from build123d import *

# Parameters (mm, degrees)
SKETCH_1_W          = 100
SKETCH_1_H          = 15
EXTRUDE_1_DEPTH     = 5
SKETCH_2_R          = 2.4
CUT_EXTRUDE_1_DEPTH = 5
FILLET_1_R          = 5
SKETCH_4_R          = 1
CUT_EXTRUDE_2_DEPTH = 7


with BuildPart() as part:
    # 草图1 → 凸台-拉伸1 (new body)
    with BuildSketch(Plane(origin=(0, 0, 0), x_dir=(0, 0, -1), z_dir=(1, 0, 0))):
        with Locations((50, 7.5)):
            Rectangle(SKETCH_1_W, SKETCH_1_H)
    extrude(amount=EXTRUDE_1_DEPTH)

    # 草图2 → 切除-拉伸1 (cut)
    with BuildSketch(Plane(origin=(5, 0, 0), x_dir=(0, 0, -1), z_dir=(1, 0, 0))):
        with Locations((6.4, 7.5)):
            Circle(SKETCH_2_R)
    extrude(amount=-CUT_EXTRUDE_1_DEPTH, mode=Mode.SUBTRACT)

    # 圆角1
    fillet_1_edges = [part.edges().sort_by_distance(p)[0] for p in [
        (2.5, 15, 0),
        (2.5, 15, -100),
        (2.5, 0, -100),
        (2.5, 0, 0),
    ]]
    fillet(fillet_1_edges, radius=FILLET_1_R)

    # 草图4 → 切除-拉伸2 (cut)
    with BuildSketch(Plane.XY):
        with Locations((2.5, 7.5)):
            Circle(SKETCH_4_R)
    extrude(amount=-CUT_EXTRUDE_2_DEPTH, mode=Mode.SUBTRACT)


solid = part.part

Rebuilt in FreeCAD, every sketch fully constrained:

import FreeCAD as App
import Part
import Sketcher
from FreeCAD import Vector


def edges_at(feature, points):
    """Names of the edges that pass closest to the given points."""
    edges = feature.Shape.Edges
    near = lambda p: min(range(len(edges)), key=lambda i: edges[i].distToShape(Part.Vertex(*p))[0])
    return sorted({f"Edge{near(p) + 1}" for p in points})

doc = App.newDocument("Part")
body = doc.addObject("PartDesign::Body", "Body")

# Sketch on YZ plane
sketch1 = body.newObject("Sketcher::SketchObject", "Sketch")
sketch1.AttachmentSupport = (doc.getObject("YZ_Plane"), [""])
sketch1.MapMode = "FlatFace"
sketch1.addGeometry(Part.LineSegment(Vector(15, 0, 0), Vector(0, 0, 0)), False)
sketch1.addGeometry(Part.LineSegment(Vector(0, 0, 0), Vector(0, -100, 0)), False)
sketch1.addGeometry(Part.LineSegment(Vector(0, -100, 0), Vector(15, -100, 0)), False)
sketch1.addGeometry(Part.LineSegment(Vector(15, -100, 0), Vector(15, 0, 0)), False)
sketch1.addConstraint(Sketcher.Constraint("Coincident", 0, 2, 1, 1))
sketch1.addConstraint(Sketcher.Constraint("Coincident", 1, 2, 2, 1))
sketch1.addConstraint(Sketcher.Constraint("Coincident", 2, 2, 3, 1))
sketch1.addConstraint(Sketcher.Constraint("Coincident", 3, 2, 0, 1))
sketch1.addConstraint(Sketcher.Constraint("Horizontal", 0))
sketch1.addConstraint(Sketcher.Constraint("Vertical", 1))
sketch1.addConstraint(Sketcher.Constraint("Horizontal", 2))
sketch1.addConstraint(Sketcher.Constraint("Vertical", 3))
sketch1.addConstraint(Sketcher.Constraint("Coincident", 0, 2, -1, 1))
sketch1.addConstraint(Sketcher.Constraint("DistanceX", 0, 2, 0, 1, 15.0))
sketch1.addConstraint(Sketcher.Constraint("DistanceY", 1, 2, 1, 1, 100.0))
pad1 = body.newObject("PartDesign::Pad", "Pad")
pad1.Profile = sketch1
pad1.Length = 5

# Sketch on YZ plane
sketch2 = body.newObject("Sketcher::SketchObject", "Sketch001")
sketch2.AttachmentSupport = (doc.getObject("YZ_Plane"), [""])
sketch2.MapMode = "FlatFace"
sketch2.AttachmentOffset = App.Placement(Vector(0, 0, 5), App.Rotation())
sketch2.addGeometry(Part.Circle(Vector(7.5, -6.4, 0), Vector(0, 0, 1), 2.4), False)
sketch2.addConstraint(Sketcher.Constraint("Diameter", 0, 4.8))
sketch2.addConstraint(Sketcher.Constraint("DistanceX", -1, 1, 0, 3, 7.5))
sketch2.addConstraint(Sketcher.Constraint("DistanceY", 0, 3, -1, 1, 6.4))
pocket1 = body.newObject("PartDesign::Pocket", "Pocket")
pocket1.Profile = sketch2
pocket1.Length = 5
doc.recompute()

fillet = body.newObject("PartDesign::Fillet", "Fillet")
fillet.Base = (pocket1, edges_at(pocket1, [
    (2.5, 15, 0),
    (2.5, 15, -100),
    (2.5, 0, -100),
    (2.5, 0, 0),
]))
fillet.Radius = 5

# Sketch on XY plane
sketch3 = body.newObject("Sketcher::SketchObject", "Sketch002")
sketch3.AttachmentSupport = (doc.getObject("XY_Plane"), [""])
sketch3.MapMode = "FlatFace"
sketch3.addGeometry(Part.Circle(Vector(2.5, 7.5, 0), Vector(0, 0, 1), 1), False)
sketch3.addConstraint(Sketcher.Constraint("Diameter", 0, 2.0))
sketch3.addConstraint(Sketcher.Constraint("DistanceX", -1, 1, 0, 3, 2.5))
sketch3.addConstraint(Sketcher.Constraint("DistanceY", -1, 1, 0, 3, 7.5))
pocket2 = body.newObject("PartDesign::Pocket", "Pocket001")
pocket2.Profile = sketch3
pocket2.Length = 7

doc.recompute()
